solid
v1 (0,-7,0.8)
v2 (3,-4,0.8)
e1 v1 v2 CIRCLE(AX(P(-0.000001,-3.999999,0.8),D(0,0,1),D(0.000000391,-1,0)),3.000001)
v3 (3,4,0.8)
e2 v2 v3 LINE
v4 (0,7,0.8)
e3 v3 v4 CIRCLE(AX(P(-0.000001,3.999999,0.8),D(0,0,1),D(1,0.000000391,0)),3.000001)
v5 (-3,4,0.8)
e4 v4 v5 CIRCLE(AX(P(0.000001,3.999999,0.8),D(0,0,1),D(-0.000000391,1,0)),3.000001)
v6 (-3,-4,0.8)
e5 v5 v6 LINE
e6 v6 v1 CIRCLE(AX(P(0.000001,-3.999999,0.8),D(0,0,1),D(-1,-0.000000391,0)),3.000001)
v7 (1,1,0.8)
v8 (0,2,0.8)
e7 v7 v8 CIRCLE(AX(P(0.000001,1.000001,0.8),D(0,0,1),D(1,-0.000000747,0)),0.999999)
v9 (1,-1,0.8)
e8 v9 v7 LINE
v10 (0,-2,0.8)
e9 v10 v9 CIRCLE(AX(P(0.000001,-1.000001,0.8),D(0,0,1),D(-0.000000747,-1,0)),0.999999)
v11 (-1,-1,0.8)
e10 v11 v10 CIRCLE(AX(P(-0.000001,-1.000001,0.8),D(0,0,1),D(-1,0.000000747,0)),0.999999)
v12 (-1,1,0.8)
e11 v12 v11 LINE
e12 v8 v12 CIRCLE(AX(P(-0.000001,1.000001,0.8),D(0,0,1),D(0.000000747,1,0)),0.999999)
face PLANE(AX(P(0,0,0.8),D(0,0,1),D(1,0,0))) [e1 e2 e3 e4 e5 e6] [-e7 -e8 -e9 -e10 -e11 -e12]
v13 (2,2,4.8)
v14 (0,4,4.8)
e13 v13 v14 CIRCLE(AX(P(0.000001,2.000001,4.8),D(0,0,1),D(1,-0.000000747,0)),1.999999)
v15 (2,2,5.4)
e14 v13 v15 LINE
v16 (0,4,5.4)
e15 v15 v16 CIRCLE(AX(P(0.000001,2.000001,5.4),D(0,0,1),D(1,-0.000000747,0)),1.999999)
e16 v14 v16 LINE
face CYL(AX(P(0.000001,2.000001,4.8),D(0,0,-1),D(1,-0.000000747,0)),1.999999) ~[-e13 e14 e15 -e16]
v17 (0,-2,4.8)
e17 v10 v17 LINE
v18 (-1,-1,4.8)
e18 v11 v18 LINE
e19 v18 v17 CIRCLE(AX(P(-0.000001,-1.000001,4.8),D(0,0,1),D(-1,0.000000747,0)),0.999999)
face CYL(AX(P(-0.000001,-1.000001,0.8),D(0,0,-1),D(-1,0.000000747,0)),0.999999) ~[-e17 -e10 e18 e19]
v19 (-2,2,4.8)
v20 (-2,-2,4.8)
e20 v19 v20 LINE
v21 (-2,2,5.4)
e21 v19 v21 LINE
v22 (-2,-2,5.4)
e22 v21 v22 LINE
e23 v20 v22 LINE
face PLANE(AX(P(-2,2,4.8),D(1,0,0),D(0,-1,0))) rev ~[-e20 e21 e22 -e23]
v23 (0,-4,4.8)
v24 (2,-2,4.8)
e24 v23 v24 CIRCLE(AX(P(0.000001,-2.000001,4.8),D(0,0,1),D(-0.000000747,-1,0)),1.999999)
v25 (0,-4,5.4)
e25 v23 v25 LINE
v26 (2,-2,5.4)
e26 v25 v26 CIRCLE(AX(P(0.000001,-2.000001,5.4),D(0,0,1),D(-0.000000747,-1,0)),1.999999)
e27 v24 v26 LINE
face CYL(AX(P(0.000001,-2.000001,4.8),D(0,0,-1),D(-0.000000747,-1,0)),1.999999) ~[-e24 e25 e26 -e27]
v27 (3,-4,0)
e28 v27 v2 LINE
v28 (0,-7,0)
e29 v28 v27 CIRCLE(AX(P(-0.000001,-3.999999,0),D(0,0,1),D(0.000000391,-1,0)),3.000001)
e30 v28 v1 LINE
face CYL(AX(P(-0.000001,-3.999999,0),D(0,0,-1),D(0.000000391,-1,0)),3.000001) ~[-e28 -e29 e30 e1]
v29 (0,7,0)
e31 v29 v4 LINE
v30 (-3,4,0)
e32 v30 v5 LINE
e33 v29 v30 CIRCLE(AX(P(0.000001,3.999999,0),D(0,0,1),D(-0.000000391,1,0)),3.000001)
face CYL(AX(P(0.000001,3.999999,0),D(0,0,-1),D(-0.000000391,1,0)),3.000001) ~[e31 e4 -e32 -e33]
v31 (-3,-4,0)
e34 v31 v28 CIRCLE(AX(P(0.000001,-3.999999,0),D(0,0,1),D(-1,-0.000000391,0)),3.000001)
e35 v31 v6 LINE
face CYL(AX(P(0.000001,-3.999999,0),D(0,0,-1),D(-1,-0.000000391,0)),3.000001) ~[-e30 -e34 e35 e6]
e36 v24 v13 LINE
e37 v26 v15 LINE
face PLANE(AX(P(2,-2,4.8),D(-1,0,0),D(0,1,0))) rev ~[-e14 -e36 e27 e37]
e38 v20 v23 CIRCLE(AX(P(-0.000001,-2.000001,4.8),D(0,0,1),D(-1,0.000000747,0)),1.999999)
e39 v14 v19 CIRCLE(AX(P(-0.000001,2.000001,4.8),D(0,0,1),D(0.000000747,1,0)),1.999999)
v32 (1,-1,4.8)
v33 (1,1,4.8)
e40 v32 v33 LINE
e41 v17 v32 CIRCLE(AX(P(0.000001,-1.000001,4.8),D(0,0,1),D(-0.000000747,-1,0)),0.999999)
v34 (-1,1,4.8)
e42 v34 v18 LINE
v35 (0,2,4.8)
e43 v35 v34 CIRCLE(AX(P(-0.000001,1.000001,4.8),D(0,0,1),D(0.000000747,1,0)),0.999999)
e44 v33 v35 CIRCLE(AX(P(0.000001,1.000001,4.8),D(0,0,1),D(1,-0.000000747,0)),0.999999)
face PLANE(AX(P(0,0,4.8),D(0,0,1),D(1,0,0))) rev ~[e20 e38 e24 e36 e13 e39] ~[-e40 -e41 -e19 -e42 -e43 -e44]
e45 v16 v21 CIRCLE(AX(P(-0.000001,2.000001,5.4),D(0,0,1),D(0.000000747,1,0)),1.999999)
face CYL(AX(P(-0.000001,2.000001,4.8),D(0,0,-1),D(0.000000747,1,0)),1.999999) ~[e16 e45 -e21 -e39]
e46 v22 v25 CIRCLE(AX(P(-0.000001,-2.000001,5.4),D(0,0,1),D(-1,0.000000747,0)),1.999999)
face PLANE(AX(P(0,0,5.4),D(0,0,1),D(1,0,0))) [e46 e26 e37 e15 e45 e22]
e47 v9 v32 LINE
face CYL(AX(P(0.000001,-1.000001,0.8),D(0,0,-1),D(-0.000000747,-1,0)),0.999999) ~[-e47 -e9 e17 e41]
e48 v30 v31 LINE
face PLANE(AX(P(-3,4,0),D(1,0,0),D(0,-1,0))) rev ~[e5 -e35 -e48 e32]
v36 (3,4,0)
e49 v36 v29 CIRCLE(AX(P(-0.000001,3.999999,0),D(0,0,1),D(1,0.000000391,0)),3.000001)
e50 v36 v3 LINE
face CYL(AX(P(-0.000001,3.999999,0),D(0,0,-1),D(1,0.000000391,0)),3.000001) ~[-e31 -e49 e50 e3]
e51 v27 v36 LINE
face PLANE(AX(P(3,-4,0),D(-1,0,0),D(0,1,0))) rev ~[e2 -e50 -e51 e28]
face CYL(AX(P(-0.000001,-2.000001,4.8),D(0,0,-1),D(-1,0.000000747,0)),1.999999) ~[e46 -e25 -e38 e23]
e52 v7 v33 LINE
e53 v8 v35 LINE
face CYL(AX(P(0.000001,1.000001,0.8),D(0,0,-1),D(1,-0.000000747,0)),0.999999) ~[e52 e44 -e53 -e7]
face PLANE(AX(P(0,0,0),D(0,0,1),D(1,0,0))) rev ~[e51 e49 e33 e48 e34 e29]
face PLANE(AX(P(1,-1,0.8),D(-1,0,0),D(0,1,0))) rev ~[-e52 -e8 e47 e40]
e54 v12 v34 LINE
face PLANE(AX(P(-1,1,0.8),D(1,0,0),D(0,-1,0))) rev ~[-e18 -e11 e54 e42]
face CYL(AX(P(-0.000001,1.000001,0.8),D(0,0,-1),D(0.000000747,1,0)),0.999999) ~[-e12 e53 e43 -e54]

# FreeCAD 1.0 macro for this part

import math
import FreeCAD as App
import Part
import Sketcher

V = App.Vector

doc = App.newDocument("Part")
params = doc.addObject("Spreadsheet::Sheet", "Params")
for row, (alias, value) in enumerate([
    ("sketch1_radius", "3.000001 mm"),
    ("sketch1_height", "8 mm"),
    ("pad1_length", "0.8 mm"),
    ("sketch2_radius", "0.999999 mm"),
    ("sketch2_height", "2 mm"),
    ("pad2_length", "4 mm"),
    ("sketch3_radius", "1.999999 mm"),
    ("sketch3_height", "4 mm"),
    ("pad3_length", "0.6 mm"),
], start=1):
    params.set(f"A{row}", alias)
    params.set(f"B{row}", "=" + value)
    params.setAlias(f"B{row}", alias)

body = doc.addObject("PartDesign::Body", "Body")

sketch1 = body.newObject("Sketcher::SketchObject", "Sketch")
sketch1.AttachmentSupport = (doc.getObject("XY_Plane"), [""])
sketch1.MapMode = "FlatFace"
sketch1.addGeometry([
    Part.ArcOfCircle(Part.Circle(V(0, 4, 0), V(0, 0, 1), 3), math.radians(90), math.radians(180)),
    Part.LineSegment(V(-3, 4, 0), V(-3, -4, 0)),
    Part.ArcOfCircle(Part.Circle(V(0, -4, 0), V(0, 0, 1), 3), math.radians(-180), math.radians(-90)),
    Part.ArcOfCircle(Part.Circle(V(0, -4, 0), V(0, 0, 1), 3), math.radians(-90), math.radians(0)),
    Part.LineSegment(V(3, -4, 0), V(3, 4, 0)),
    Part.ArcOfCircle(Part.Circle(V(0, 4, 0), V(0, 0, 1), 3), math.radians(0), math.radians(90)),
], False)
sketch1.addConstraint([
    Sketcher.Constraint("Tangent", 0, 2, 1, 1),
    Sketcher.Constraint("Tangent", 1, 2, 2, 1),
    Sketcher.Constraint("Tangent", 2, 2, 3, 1),
    Sketcher.Constraint("Tangent", 3, 2, 4, 1),
    Sketcher.Constraint("Tangent", 4, 2, 5, 1),
    Sketcher.Constraint("Tangent", 5, 2, 0, 1),
    Sketcher.Constraint("Vertical", 1),
    Sketcher.Constraint("Vertical", 4),
    Sketcher.Constraint("Equal", 0, 2),
    Sketcher.Constraint("Equal", 2, 3),
    Sketcher.Constraint("Symmetric", 0, 3, 2, 3, -1, 1),
    Sketcher.Constraint("PointOnObject", 2, 2, -2),
    Sketcher.Constraint("PointOnObject", 5, 2, -2),
    Sketcher.Constraint("Radius", 0, 3.000001),
    Sketcher.Constraint("DistanceY", 1, 2, 1, 1, 8.0),
])
sketch1.setExpression("Constraints[13]", "Params.sketch1_radius")
sketch1.setExpression("Constraints[14]", "Params.sketch1_height")
pad1 = body.newObject("PartDesign::Pad", "Pad")
pad1.Profile = sketch1
pad1.setExpression("Length", "Params.pad1_length")

sketch2 = body.newObject("Sketcher::SketchObject", "Sketch001")
sketch2.AttachmentSupport = (doc.getObject("XY_Plane"), [""])
sketch2.MapMode = "FlatFace"
sketch2.AttachmentOffset = App.Placement(V(0, 0, 0.8), App.Rotation())
sketch2.addGeometry([
    Part.ArcOfCircle(Part.Circle(V(0, 1, 0), V(0, 0, 1), 1), math.radians(90), math.radians(180)),
    Part.LineSegment(V(-1, 1, 0), V(-1, -1, 0)),
    Part.ArcOfCircle(Part.Circle(V(0, -1, 0), V(0, 0, 1), 1), math.radians(180), math.radians(270)),
    Part.ArcOfCircle(Part.Circle(V(0, -1, 0), V(0, 0, 1), 1), math.radians(-90), math.radians(0)),
    Part.LineSegment(V(1, -1, 0), V(1, 1, 0)),
    Part.ArcOfCircle(Part.Circle(V(0, 1, 0), V(0, 0, 1), 1), math.radians(0), math.radians(90)),
], False)
sketch2.addConstraint([
    Sketcher.Constraint("Tangent", 0, 2, 1, 1),
    Sketcher.Constraint("Tangent", 1, 2, 2, 1),
    Sketcher.Constraint("Tangent", 2, 2, 3, 1),
    Sketcher.Constraint("Tangent", 3, 2, 4, 1),
    Sketcher.Constraint("Tangent", 4, 2, 5, 1),
    Sketcher.Constraint("Tangent", 5, 2, 0, 1),
    Sketcher.Constraint("Vertical", 1),
    Sketcher.Constraint("Vertical", 4),
    Sketcher.Constraint("Equal", 0, 2),
    Sketcher.Constraint("Equal", 2, 3),
    Sketcher.Constraint("Symmetric", 0, 3, 2, 3, -1, 1),
    Sketcher.Constraint("PointOnObject", 2, 2, -2),
    Sketcher.Constraint("PointOnObject", 5, 2, -2),
    Sketcher.Constraint("Radius", 0, 0.999999),
    Sketcher.Constraint("DistanceY", 1, 2, 1, 1, 2.0),
])
sketch2.setExpression("Constraints[13]", "Params.sketch2_radius")
sketch2.setExpression("Constraints[14]", "Params.sketch2_height")
pad2 = body.newObject("PartDesign::Pad", "Pad001")
pad2.Profile = sketch2
pad2.setExpression("Length", "Params.pad2_length")

sketch3 = body.newObject("Sketcher::SketchObject", "Sketch002")
sketch3.AttachmentSupport = (doc.getObject("XY_Plane"), [""])
sketch3.MapMode = "FlatFace"
sketch3.AttachmentOffset = App.Placement(V(0, 0, 4.8), App.Rotation())
sketch3.addGeometry([
    Part.ArcOfCircle(Part.Circle(V(0, 2, 0), V(0, 0, 1), 2), math.radians(90), math.radians(180)),
    Part.LineSegment(V(-2, 2, 0), V(-2, -2, 0)),
    Part.ArcOfCircle(Part.Circle(V(0, -2, 0), V(0, 0, 1), 2), math.radians(180), math.radians(270)),
    Part.ArcOfCircle(Part.Circle(V(0, -2, 0), V(0, 0, 1), 2), math.radians(-90), math.radians(0)),
    Part.LineSegment(V(2, -2, 0), V(2, 2, 0)),
    Part.ArcOfCircle(Part.Circle(V(0, 2, 0), V(0, 0, 1), 2), math.radians(0), math.radians(90)),
], False)
sketch3.addConstraint([
    Sketcher.Constraint("Tangent", 0, 2, 1, 1),
    Sketcher.Constraint("Tangent", 1, 2, 2, 1),
    Sketcher.Constraint("Tangent", 2, 2, 3, 1),
    Sketcher.Constraint("Tangent", 3, 2, 4, 1),
    Sketcher.Constraint("Tangent", 4, 2, 5, 1),
    Sketcher.Constraint("Tangent", 5, 2, 0, 1),
    Sketcher.Constraint("Vertical", 1),
    Sketcher.Constraint("Vertical", 4),
    Sketcher.Constraint("Equal", 0, 2),
    Sketcher.Constraint("Equal", 2, 3),
    Sketcher.Constraint("Symmetric", 0, 3, 2, 3, -1, 1),
    Sketcher.Constraint("PointOnObject", 2, 2, -2),
    Sketcher.Constraint("PointOnObject", 5, 2, -2),
    Sketcher.Constraint("Radius", 0, 1.999999),
    Sketcher.Constraint("DistanceY", 1, 2, 1, 1, 4.0),
])
sketch3.setExpression("Constraints[13]", "Params.sketch3_radius")
sketch3.setExpression("Constraints[14]", "Params.sketch3_height")
pad3 = body.newObject("PartDesign::Pad", "Pad002")
pad3.Profile = sketch3
pad3.setExpression("Length", "Params.pad3_length")

doc.recompute()
